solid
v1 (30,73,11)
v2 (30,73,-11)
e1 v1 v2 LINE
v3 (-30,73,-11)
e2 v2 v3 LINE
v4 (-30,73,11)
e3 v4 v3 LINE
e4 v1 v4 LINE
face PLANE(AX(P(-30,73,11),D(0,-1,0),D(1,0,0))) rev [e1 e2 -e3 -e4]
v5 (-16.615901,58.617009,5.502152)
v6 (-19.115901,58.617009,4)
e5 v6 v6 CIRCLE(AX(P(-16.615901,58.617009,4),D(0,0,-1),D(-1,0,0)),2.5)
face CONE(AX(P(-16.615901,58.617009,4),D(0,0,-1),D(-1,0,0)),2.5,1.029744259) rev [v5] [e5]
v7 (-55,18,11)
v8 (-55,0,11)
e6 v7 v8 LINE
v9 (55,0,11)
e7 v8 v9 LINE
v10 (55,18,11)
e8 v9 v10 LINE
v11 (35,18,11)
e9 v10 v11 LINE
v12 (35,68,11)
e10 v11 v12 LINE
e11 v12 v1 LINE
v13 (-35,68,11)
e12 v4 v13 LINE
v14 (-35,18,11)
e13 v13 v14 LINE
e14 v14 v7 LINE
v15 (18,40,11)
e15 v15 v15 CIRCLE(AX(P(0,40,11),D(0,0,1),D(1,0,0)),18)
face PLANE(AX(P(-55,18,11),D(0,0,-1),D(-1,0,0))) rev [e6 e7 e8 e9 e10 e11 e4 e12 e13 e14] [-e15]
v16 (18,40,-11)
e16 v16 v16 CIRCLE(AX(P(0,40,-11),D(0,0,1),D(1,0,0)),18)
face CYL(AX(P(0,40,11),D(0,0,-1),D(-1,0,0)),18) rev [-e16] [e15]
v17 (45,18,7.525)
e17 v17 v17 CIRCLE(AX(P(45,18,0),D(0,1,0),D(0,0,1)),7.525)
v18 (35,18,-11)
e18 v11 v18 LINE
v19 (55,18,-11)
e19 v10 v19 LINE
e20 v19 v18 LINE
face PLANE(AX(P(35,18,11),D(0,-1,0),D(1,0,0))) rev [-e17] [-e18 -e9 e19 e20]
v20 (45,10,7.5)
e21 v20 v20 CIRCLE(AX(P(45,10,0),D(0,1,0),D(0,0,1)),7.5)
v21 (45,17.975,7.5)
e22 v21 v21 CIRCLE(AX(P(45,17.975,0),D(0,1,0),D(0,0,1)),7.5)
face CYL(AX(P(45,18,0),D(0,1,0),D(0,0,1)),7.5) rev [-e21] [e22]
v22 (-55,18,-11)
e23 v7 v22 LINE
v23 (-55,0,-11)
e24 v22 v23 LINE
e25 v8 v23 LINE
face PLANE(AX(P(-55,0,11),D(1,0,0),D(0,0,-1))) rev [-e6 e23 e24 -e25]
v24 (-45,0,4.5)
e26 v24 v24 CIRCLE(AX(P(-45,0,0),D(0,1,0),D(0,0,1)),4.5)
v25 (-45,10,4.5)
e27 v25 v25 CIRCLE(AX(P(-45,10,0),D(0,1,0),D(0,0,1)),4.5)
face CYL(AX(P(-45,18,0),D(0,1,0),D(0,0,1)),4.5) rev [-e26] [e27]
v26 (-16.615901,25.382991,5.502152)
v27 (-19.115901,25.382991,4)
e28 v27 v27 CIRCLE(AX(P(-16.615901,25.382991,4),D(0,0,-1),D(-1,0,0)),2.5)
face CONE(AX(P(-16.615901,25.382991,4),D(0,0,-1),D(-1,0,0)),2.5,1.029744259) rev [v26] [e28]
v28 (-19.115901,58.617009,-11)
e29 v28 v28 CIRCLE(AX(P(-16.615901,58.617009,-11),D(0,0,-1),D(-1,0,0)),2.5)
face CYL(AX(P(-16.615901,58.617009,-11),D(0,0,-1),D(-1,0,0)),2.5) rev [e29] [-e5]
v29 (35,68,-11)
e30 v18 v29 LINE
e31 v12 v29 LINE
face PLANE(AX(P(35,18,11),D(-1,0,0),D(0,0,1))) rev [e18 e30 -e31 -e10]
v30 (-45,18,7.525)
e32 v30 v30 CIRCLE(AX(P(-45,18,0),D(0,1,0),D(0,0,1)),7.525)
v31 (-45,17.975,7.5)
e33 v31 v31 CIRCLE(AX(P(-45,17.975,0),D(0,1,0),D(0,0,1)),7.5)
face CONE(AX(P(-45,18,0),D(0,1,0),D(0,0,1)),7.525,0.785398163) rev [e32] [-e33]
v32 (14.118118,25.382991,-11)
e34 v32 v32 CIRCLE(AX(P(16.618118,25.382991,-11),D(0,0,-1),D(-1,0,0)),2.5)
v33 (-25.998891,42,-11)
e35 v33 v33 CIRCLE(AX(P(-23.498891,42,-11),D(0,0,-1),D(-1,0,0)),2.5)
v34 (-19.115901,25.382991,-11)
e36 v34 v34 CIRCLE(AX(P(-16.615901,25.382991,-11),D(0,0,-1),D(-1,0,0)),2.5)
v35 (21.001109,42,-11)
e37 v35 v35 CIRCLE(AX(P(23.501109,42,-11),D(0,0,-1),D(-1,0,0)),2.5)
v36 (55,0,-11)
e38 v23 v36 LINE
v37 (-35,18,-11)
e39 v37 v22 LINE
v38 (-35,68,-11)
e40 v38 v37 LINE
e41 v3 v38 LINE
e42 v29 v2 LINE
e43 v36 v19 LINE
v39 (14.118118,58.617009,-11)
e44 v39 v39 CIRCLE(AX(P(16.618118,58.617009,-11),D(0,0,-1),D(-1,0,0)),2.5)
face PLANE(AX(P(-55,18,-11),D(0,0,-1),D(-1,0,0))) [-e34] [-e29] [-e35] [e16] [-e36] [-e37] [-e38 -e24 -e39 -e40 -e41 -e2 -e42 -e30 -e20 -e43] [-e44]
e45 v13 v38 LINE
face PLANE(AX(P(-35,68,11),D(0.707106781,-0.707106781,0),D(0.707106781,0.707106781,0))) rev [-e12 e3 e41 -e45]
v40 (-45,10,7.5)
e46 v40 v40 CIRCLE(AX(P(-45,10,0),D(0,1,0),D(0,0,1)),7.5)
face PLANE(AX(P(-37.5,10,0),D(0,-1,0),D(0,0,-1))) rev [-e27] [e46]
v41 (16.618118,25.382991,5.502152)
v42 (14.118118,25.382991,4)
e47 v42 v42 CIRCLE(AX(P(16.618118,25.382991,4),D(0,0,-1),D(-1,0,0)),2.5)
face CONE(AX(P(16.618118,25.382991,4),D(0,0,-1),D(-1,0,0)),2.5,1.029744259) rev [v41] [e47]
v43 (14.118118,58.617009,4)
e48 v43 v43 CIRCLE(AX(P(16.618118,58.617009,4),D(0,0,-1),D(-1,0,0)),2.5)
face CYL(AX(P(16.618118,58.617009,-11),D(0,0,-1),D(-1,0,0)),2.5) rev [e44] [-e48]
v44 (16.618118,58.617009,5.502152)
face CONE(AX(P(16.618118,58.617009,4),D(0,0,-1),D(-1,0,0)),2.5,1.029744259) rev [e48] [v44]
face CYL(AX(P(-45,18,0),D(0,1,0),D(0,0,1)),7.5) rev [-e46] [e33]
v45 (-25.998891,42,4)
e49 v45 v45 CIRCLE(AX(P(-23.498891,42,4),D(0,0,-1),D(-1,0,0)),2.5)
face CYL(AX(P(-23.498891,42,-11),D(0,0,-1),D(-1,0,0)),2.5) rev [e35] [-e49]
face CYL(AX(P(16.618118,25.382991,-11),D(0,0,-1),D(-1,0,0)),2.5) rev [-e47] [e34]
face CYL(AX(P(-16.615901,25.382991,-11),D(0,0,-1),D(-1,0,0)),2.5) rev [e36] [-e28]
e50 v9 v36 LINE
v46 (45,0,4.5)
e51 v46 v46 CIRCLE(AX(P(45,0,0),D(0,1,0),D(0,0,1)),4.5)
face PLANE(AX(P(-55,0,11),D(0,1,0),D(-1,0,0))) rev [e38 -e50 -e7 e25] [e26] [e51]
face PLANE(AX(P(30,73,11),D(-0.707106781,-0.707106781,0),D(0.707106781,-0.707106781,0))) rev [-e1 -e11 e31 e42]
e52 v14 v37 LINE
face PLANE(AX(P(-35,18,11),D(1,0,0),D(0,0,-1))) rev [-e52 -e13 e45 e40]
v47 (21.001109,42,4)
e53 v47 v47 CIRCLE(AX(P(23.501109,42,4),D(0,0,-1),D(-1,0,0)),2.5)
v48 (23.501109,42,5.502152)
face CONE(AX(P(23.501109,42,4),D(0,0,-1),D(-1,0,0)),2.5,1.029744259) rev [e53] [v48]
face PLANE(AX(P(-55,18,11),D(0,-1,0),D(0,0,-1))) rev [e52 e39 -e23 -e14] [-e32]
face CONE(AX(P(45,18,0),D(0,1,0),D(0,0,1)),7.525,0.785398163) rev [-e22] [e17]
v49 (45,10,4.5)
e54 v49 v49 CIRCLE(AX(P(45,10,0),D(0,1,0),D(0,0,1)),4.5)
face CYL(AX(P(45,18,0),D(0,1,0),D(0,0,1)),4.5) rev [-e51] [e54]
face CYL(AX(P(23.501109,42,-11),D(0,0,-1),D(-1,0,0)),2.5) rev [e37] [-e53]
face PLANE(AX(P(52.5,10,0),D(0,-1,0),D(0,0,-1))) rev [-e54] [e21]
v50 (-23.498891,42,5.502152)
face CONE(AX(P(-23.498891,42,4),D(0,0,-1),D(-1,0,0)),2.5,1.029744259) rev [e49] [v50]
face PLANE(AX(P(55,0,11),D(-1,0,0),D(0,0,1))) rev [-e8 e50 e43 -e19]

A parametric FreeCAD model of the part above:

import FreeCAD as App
import Part
import Sketcher
Q = App.Units.Quantity


def add_polygon(sketch, points):
    """Adds a closed chain of lines whose ends are joined by coincident constraints."""
    first, n = sketch.GeometryCount, len(points)
    for a, b in zip(points, points[1:] + points[:1]):
        sketch.addGeometry(Part.LineSegment(App.Vector(*a, 0), App.Vector(*b, 0)), False)
    for i in range(n):
        sketch.addConstraint(Sketcher.Constraint("Coincident", first + i, 2, first + (i + 1) % n, 1))

doc = App.newDocument("Part")
params = doc.addObject("Spreadsheet::Sheet", "Params")
for row, (alias, value) in enumerate([
    ("sketch1_diameter", "36 mm"),
    ("sketch1_width", "20 mm"),
    ("sketch1_width2", "60 mm"),
    ("sketch1_width3", "110 mm"),
    ("sketch1_height", "50 mm"),
    ("pad1_length", "22 mm"),
    ("sketch2_width", "18 mm"),
    ("sketch2_width2", "10 mm"),
    ("sketch2_height", "3 mm"),
    ("sketch2_height2", "4.5 mm"),
    ("groove_angle", "360 deg"),
    ("linearpattern_pitch", "90 mm"),
    ("sketch3_diameter", "5 mm"),
    ("hole_diameter", "5 mm"),
    ("hole_depth", "15 mm"),
], start=1):
    params.set(f"A{row}", alias)
    params.set(f"B{row}", "=" + value)
    params.setAlias(f"B{row}", alias)

body = doc.addObject("PartDesign::Body", "Body")

# Sketch on XY plane
sketch1 = doc.addObject("Sketcher::SketchObject", "Sketch")
body.addObject(sketch1)
sketch1.AttachmentSupport = (doc.XY_Plane, [""])
sketch1.MapMode = "FlatFace"
add_polygon(sketch1, [(55, 18), (35, 18), (35, 68), (30, 73), (-30, 73), (-35, 68), (-35, 18), (-55, 18), (-55, 0), (55, 0)])  # lines 0-9
sketch1.addGeometry(Part.Circle(App.Vector(0, 40, 0), App.Vector(0, 0, 1), 18), False)  # 10
sketch1.addConstraint(Sketcher.Constraint("Horizontal", 0))
sketch1.addConstraint(Sketcher.Constraint("Vertical", 1))
sketch1.addConstraint(Sketcher.Constraint("Horizontal", 3))
sketch1.addConstraint(Sketcher.Constraint("Vertical", 5))
sketch1.addConstraint(Sketcher.Constraint("Horizontal", 6))
sketch1.addConstraint(Sketcher.Constraint("Vertical", 7))
sketch1.addConstraint(Sketcher.Constraint("Horizontal", 8))
sketch1.addConstraint(Sketcher.Constraint("Vertical", 9))
sketch1.addConstraint(Sketcher.Constraint("Symmetric", 7, 2, 8, 2, -1, 1))
sketch1.addConstraint(Sketcher.Constraint("Symmetric", 1, 2, 4, 2, -2))
sketch1.addConstraint(Sketcher.Constraint("PointOnObject", 10, 3, -2))
sketch1.addConstraint(Sketcher.Constraint("Perpendicular", 2, 4))
sketch1.addConstraint(Sketcher.Constraint("Horizontal", 0, 2, 5, 2))
sketch1.addConstraint(Sketcher.Constraint("Equal", 2, 4))
sketch1.addConstraint(Sketcher.Constraint("Diameter", 10, Q("36 mm")))
sketch1.addConstraint(Sketcher.Constraint("DistanceX", 0, 2, 0, 1, Q("20 mm")))
sketch1.addConstraint(Sketcher.Constraint("DistanceX", 3, 2, 3, 1, Q("60 mm")))
sketch1.addConstraint(Sketcher.Constraint("DistanceX", 8, 1, 8, 2, Q("110 mm")))
sketch1.addConstraint(Sketcher.Constraint("DistanceY", 1, 1, 1, 2, Q("50 mm")))
sketch1.addConstraint(Sketcher.Constraint("DistanceY", 7, 2, 7, 1, Q("18 mm")))
sketch1.addConstraint(Sketcher.Constraint("DistanceY", -1, 1, 10, 3, Q("40 mm")))
sketch1.setExpression("Constraints[24]", "Params.sketch1_diameter")
sketch1.setExpression("Constraints[25]", "Params.sketch1_width")
sketch1.setExpression("Constraints[26]", "Params.sketch1_width2")
sketch1.setExpression("Constraints[27]", "Params.sketch1_width3")
sketch1.setExpression("Constraints[28]", "Params.sketch1_height")
pad1 = doc.addObject("PartDesign::Pad", "Pad")
body.addObject(pad1)
pad1.Profile = sketch1
pad1.setExpression("Length", "Params.pad1_length")
pad1.Midplane = True

# Sketch on YZ plane
sketch2 = doc.addObject("Sketcher::SketchObject", "Sketch001")
body.addObject(sketch2)
sketch2.AttachmentSupport = (doc.YZ_Plane, [""])
sketch2.MapMode = "FlatFace"
sketch2.AttachmentOffset = App.Placement(App.Vector(0, 0, -45), App.Rotation())
add_polygon(sketch2, [(0, 0), (18, 0), (18, 7.525), (17.975, 7.5), (10, 7.5), (10, 4.5), (0, 4.5)])  # lines 0-6
sketch2.addConstraint(Sketcher.Constraint("Horizontal", 0))
sketch2.addConstraint(Sketcher.Constraint("Vertical", 1))
sketch2.addConstraint(Sketcher.Constraint("Horizontal", 3))
sketch2.addConstraint(Sketcher.Constraint("Vertical", 4))
sketch2.addConstraint(Sketcher.Constraint("Horizontal", 5))
sketch2.addConstraint(Sketcher.Constraint("Vertical", 6))
sketch2.addConstraint(Sketcher.Constraint("Coincident", 6, 2, -1, 1))
sketch2.addConstraint(Sketcher.Constraint("DistanceX", 0, 1, 0, 2, Q("18 mm")))
sketch2.addConstraint(Sketcher.Constraint("DistanceX", 5, 2, 5, 1, Q("10 mm")))
sketch2.addConstraint(Sketcher.Constraint("DistanceY", 4, 2, 4, 1, Q("3 mm")))
sketch2.addConstraint(Sketcher.Constraint("Angle", 2, Q("-135 deg")))
sketch2.addConstraint(Sketcher.Constraint("DistanceY", 6, 2, 6, 1, Q("4.5 mm")))
sketch2.addConstraint(Sketcher.Constraint("DistanceX", 3, 2, 3, 1, Q("7.975 mm")))
sketch2.setExpression("Constraints[14]", "Params.sketch2_width")
sketch2.setExpression("Constraints[15]", "Params.sketch2_width2")
sketch2.setExpression("Constraints[16]", "Params.sketch2_height")
sketch2.setExpression("Constraints[18]", "Params.sketch2_height2")
groove = doc.addObject("PartDesign::Groove", "Groove")
body.addObject(groove)
groove.Profile = sketch2
groove.ReferenceAxis = (sketch2, ["H_Axis"])
groove.setExpression("Angle", "Params.groove_angle")
doc.recompute()

linearpattern = doc.addObject("PartDesign::LinearPattern", "LinearPattern")
body.addObject(linearpattern)
linearpattern.Originals = [groove]
linearpattern.Direction = (doc.X_Axis, [""])
linearpattern.Mode = "offset"
linearpattern.setExpression("Offset", "Params.linearpattern_pitch")
linearpattern.Occurrences = 2
body.Tip = linearpattern

# Sketch on XY plane
sketch3 = doc.addObject("Sketcher::SketchObject", "Sketch002")
body.addObject(sketch3)
sketch3.AttachmentSupport = (doc.XY_Plane, [""])
sketch3.MapMode = "FlatFace"
sketch3.AttachmentOffset = App.Placement(App.Vector(0, 0, -11), App.Rotation())
sketch3.addGeometry(Part.Circle(App.Vector(-16.6, 25.4, 0), App.Vector(0, 0, 1), 2.5), False)
sketch3.addGeometry(Part.Circle(App.Vector(16.6, 25.4, 0), App.Vector(0, 0, 1), 2.5), False)
sketch3.addGeometry(Part.Circle(App.Vector(23.5, 42, 0), App.Vector(0, 0, 1), 2.5), False)
sketch3.addGeometry(Part.Circle(App.Vector(16.6, 58.6, 0), App.Vector(0, 0, 1), 2.5), False)
sketch3.addGeometry(Part.Circle(App.Vector(-16.6, 58.6, 0), App.Vector(0, 0, 1), 2.5), False)
sketch3.addGeometry(Part.Circle(App.Vector(-23.5, 42, 0), App.Vector(0, 0, 1), 2.5), False)
sketch3.addConstraint(Sketcher.Constraint("Equal", 0, 1))
sketch3.addConstraint(Sketcher.Constraint("Equal", 1, 2))
sketch3.addConstraint(Sketcher.Constraint("Equal", 2, 3))
sketch3.addConstraint(Sketcher.Constraint("Equal", 3, 4))
sketch3.addConstraint(Sketcher.Constraint("Equal", 4, 5))
sketch3.addConstraint(Sketcher.Constraint("Horizontal", 0, 3, 1, 3))
sketch3.addConstraint(Sketcher.Constraint("Horizontal", 3, 3, 4, 3))
sketch3.addConstraint(Sketcher.Constraint("Horizontal", 2, 3, 5, 3))
sketch3.addConstraint(Sketcher.Constraint("Vertical", 1, 3, 3, 3))
sketch3.addConstraint(Sketcher.Constraint("Vertical", 0, 3, 4, 3))
sketch3.addConstraint(Sketcher.Constraint("Diameter", 0, Q("5 mm")))
sketch3.addConstraint(Sketcher.Constraint("DistanceY", -1, 1, 2, 3, Q("42 mm")))
sketch3.addConstraint(Sketcher.Constraint("DistanceX", 5, 3, 2, 3, Q("47 mm")))
sketch3.addConstraint(Sketcher.Constraint("DistanceX", 0, 3, -1, 1, Q("16.615901 mm")))
sketch3.addConstraint(Sketcher.Constraint("DistanceY", -1, 1, 0, 3, Q("25.382991 mm")))
sketch3.addConstraint(Sketcher.Constraint("DistanceX", -1, 1, 1, 3, Q("16.618118 mm")))
sketch3.addConstraint(Sketcher.Constraint("DistanceX", -1, 1, 2, 3, Q("23.501109 mm")))
sketch3.addConstraint(Sketcher.Constraint("DistanceY", -1, 1, 3, 3, Q("58.617009 mm")))
sketch3.setExpression("Constraints[10]", "Params.sketch3_diameter")
doc.recompute()
hole = doc.addObject("PartDesign::Hole", "Hole")
body.addObject(hole)
hole.Profile = sketch3
hole.ThreadType = "None"
hole.setExpression("Diameter", "Params.hole_diameter")
hole.DepthType = "Dimension"
hole.setExpression("Depth", "Params.hole_depth")
hole.DrillPoint = "Angled"
hole.DrillPointAngle = 118
hole.Reversed = True

doc.recompute()
